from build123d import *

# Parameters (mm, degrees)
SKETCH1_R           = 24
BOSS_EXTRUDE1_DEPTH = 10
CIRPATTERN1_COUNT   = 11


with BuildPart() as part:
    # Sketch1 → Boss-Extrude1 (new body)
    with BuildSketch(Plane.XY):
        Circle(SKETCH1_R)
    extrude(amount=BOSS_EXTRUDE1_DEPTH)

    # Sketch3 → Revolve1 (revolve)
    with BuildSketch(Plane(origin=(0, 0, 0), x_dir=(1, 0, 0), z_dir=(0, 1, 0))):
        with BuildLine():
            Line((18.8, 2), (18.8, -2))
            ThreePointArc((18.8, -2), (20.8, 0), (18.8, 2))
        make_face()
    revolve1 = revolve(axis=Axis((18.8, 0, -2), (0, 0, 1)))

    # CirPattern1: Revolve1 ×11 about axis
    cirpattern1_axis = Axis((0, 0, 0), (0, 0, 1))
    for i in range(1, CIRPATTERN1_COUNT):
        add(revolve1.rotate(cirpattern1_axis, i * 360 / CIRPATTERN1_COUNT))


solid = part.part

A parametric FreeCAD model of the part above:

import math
import FreeCAD as App
import Part
import Sketcher

V = App.Vector
Q = App.Units.Quantity

doc = App.newDocument("Part")
params = doc.addObject("Spreadsheet::Sheet", "Params")
for row, (alias, value) in enumerate([
    ("sketch1_diameter", "48 mm"),
    ("pad1_length", "10 mm"),
    ("sketch2_radius", "2 mm"),
    ("revolution_angle", "360 deg"),
], start=1):
    params.set(f"A{row}", alias)
    params.set(f"B{row}", "=" + value)
    params.setAlias(f"B{row}", alias)

body = doc.addObject("PartDesign::Body", "Body")

sketch1 = body.newObject("Sketcher::SketchObject", "Sketch")
sketch1.AttachmentSupport = (doc.getObject("XY_Plane"), [""])
sketch1.MapMode = "FlatFace"
sketch1.addGeometry(Part.Circle(V(0, 0, 0), V(0, 0, 1), 24), False)
sketch1.addConstraint(Sketcher.Constraint("Coincident", 0, 3, -1, 1))
sketch1.addConstraint(Sketcher.Constraint("Diameter", 0, Q("48 mm")))
sketch1.setExpression("Constraints[1]", "Params.sketch1_diameter")
pad1 = body.newObject("PartDesign::Pad", "Pad")
pad1.Profile = sketch1
pad1.setExpression("Length", "Params.pad1_length")

sketch2 = body.newObject("Sketcher::SketchObject", "Sketch001")
sketch2.AttachmentSupport = (doc.getObject("XZ_Plane"), [""])
sketch2.MapMode = "FlatFace"
sketch2.addGeometry(Part.LineSegment(V(18.8, -2, 0), V(18.8, 2, 0)), False)
sketch2.addGeometry(Part.ArcOfCircle(Part.Circle(V(18.8, 0, 0), V(0, 0, 1), 2), math.radians(-90), math.radians(90)), False)
sketch2.addGeometry(Part.LineSegment(V(18.8, -2, 0), V(18.8, 2, 0)), True)
sketch2.addConstraint(Sketcher.Constraint("Coincident", 0, 1, 1, 1))
sketch2.addConstraint(Sketcher.Constraint("Coincident", 1, 2, 0, 2))
sketch2.addConstraint(Sketcher.Constraint("Vertical", 0))
sketch2.addConstraint(Sketcher.Constraint("Vertical", 2))
sketch2.addConstraint(Sketcher.Constraint("Coincident", 2, 1, 0, 1))
sketch2.addConstraint(Sketcher.Constraint("PointOnObject", 1, 3, -1))
sketch2.addConstraint(Sketcher.Constraint("Vertical", 1, 3, 0, 1))
sketch2.addConstraint(Sketcher.Constraint("Equal", 0, 2))
sketch2.addConstraint(Sketcher.Constraint("Radius", 1, Q("2 mm")))
sketch2.addConstraint(Sketcher.Constraint("DistanceX", -1, 1, 1, 3, Q("18.8 mm")))
sketch2.setExpression("Constraints[8]", "Params.sketch2_radius")
revolution = body.newObject("PartDesign::Revolution", "Revolution")
revolution.Profile = sketch2
revolution.ReferenceAxis = (sketch2, ["Axis0"])
revolution.setExpression("Angle", "Params.revolution_angle")
doc.recompute()

polarpattern = body.newObject("PartDesign::PolarPattern", "PolarPattern")
polarpattern.Originals = [revolution]
polarpattern.Axis = (doc.getObject("Z_Axis"), [""])
polarpattern.Angle = 360
polarpattern.Occurrences = 11
body.Tip = polarpattern

doc.recompute()
